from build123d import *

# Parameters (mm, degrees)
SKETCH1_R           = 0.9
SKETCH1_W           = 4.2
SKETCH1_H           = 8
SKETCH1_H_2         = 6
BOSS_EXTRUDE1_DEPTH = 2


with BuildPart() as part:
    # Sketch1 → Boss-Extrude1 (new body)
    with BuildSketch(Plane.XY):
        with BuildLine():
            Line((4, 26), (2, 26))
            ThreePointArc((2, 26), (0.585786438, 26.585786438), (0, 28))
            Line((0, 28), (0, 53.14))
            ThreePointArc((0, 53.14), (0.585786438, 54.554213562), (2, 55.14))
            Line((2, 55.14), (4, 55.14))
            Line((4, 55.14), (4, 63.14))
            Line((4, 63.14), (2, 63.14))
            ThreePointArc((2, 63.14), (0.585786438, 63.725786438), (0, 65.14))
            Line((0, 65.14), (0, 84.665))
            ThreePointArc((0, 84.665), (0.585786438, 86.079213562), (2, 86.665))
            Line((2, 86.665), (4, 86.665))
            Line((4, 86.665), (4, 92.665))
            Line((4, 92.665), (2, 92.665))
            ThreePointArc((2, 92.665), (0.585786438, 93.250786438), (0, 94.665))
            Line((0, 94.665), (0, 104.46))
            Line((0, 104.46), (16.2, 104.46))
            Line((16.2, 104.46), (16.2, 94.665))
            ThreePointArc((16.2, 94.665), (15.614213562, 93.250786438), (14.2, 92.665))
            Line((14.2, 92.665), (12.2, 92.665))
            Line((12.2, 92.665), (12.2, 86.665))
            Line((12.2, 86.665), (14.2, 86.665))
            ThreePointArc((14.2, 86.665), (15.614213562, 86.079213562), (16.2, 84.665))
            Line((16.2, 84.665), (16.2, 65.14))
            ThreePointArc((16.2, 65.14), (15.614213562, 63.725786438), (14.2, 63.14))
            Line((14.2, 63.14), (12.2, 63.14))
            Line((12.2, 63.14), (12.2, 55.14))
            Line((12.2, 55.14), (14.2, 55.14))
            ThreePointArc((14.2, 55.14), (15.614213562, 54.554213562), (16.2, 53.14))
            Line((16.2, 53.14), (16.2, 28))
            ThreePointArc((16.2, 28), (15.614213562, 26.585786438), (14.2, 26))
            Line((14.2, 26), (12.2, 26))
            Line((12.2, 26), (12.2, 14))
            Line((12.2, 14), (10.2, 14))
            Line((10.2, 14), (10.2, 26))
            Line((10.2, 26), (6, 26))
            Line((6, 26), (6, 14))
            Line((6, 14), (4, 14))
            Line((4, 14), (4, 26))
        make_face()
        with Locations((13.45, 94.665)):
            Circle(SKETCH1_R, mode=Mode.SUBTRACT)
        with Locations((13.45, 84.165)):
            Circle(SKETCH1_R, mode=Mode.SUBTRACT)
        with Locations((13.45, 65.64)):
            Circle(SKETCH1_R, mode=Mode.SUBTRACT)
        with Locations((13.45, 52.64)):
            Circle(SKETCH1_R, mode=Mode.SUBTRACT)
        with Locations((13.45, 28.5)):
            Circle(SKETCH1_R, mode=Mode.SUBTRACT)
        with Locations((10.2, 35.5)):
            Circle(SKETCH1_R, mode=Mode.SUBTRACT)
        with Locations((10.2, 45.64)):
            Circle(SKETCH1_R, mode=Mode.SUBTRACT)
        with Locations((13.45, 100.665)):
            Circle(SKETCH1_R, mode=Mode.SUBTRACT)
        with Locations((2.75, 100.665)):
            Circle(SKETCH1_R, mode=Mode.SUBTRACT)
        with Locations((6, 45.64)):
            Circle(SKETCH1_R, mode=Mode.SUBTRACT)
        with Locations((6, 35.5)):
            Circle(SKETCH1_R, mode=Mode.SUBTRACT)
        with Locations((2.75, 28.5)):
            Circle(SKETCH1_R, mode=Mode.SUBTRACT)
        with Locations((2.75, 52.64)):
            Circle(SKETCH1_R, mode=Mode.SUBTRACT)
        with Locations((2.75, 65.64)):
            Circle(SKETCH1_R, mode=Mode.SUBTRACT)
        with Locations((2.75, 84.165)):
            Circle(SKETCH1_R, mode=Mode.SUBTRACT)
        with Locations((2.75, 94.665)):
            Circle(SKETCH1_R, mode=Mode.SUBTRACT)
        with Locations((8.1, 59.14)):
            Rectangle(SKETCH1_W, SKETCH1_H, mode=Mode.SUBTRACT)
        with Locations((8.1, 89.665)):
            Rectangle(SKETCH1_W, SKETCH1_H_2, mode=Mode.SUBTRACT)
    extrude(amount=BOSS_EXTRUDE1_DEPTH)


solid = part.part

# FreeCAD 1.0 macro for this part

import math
import FreeCAD as App
import Part
import Sketcher
from FreeCAD import Vector
Q = App.Units.Quantity


def add_polygon(sketch, points):
    """Adds a closed chain of lines whose ends are joined by coincident constraints."""
    first, n = sketch.GeometryCount, len(points)
    for a, b in zip(points, points[1:] + points[:1]):
        sketch.addGeometry(Part.LineSegment(App.Vector(*a, 0), App.Vector(*b, 0)), False)
    for i in range(n):
        sketch.addConstraint(Sketcher.Constraint("Coincident", first + i, 2, first + (i + 1) % n, 1))

doc = App.newDocument("Part")
body = doc.addObject("PartDesign::Body", "Body")

sketch1 = doc.addObject("Sketcher::SketchObject", "Sketch")
body.addObject(sketch1)
sketch1.AttachmentSupport = (doc.XY_Plane, [""])
sketch1.MapMode = "FlatFace"
sketch1.addGeometry(Part.LineSegment(Vector(2, 26, 0), Vector(4, 26, 0)), False)
sketch1.addGeometry(Part.LineSegment(Vector(4, 26, 0), Vector(4, 14, 0)), False)
sketch1.addGeometry(Part.LineSegment(Vector(4, 14, 0), Vector(6, 14, 0)), False)
sketch1.addGeometry(Part.LineSegment(Vector(6, 14, 0), Vector(6, 26, 0)), False)
sketch1.addGeometry(Part.LineSegment(Vector(6, 26, 0), Vector(10.2, 26, 0)), False)
sketch1.addGeometry(Part.LineSegment(Vector(10.2, 26, 0), Vector(10.2, 14, 0)), False)
sketch1.addGeometry(Part.LineSegment(Vector(10.2, 14, 0), Vector(12.2, 14, 0)), False)
sketch1.addGeometry(Part.LineSegment(Vector(12.2, 14, 0), Vector(12.2, 26, 0)), False)
sketch1.addGeometry(Part.LineSegment(Vector(12.2, 26, 0), Vector(14.2, 26, 0)), False)
sketch1.addGeometry(Part.ArcOfCircle(Part.Circle(Vector(14.2, 28, 0), Vector(0, 0, 1), 2), math.radians(-90), math.radians(0)), False)
sketch1.addGeometry(Part.LineSegment(Vector(16.2, 28, 0), Vector(16.2, 53.14, 0)), False)
sketch1.addGeometry(Part.ArcOfCircle(Part.Circle(Vector(14.2, 53.14, 0), Vector(0, 0, 1), 2), math.radians(0), math.radians(90)), False)
sketch1.addGeometry(Part.LineSegment(Vector(14.2, 55.14, 0), Vector(12.2, 55.14, 0)), False)
sketch1.addGeometry(Part.LineSegment(Vector(12.2, 55.14, 0), Vector(12.2, 63.14, 0)), False)
sketch1.addGeometry(Part.LineSegment(Vector(12.2, 63.14, 0), Vector(14.2, 63.14, 0)), False)
sketch1.addGeometry(Part.ArcOfCircle(Part.Circle(Vector(14.2, 65.14, 0), Vector(0, 0, 1), 2), math.radians(-90), math.radians(0)), False)
sketch1.addGeometry(Part.LineSegment(Vector(16.2, 65.14, 0), Vector(16.2, 84.665, 0)), False)
sketch1.addGeometry(Part.ArcOfCircle(Part.Circle(Vector(14.2, 84.665, 0), Vector(0, 0, 1), 2), math.radians(0), math.radians(90)), False)
sketch1.addGeometry(Part.LineSegment(Vector(14.2, 86.665, 0), Vector(12.2, 86.665, 0)), False)
sketch1.addGeometry(Part.LineSegment(Vector(12.2, 86.665, 0), Vector(12.2, 92.665, 0)), False)
sketch1.addGeometry(Part.LineSegment(Vector(12.2, 92.665, 0), Vector(14.2, 92.665, 0)), False)
sketch1.addGeometry(Part.ArcOfCircle(Part.Circle(Vector(14.2, 94.665, 0), Vector(0, 0, 1), 2), math.radians(-90), math.radians(0)), False)
sketch1.addGeometry(Part.LineSegment(Vector(16.2, 94.665, 0), Vector(16.2, 104.46, 0)), False)
sketch1.addGeometry(Part.LineSegment(Vector(16.2, 104.46, 0), Vector(0, 104.46, 0)), False)
sketch1.addGeometry(Part.LineSegment(Vector(0, 104.46, 0), Vector(0, 94.665, 0)), False)
sketch1.addGeometry(Part.ArcOfCircle(Part.Circle(Vector(2, 94.665, 0), Vector(0, 0, 1), 2), math.radians(-180), math.radians(-90)), False)
sketch1.addGeometry(Part.LineSegment(Vector(2, 92.665, 0), Vector(4, 92.665, 0)), False)
sketch1.addGeometry(Part.LineSegment(Vector(4, 92.665, 0), Vector(4, 86.665, 0)), False)
sketch1.addGeometry(Part.LineSegment(Vector(4, 86.665, 0), Vector(2, 86.665, 0)), False)
sketch1.addGeometry(Part.ArcOfCircle(Part.Circle(Vector(2, 84.665, 0), Vector(0, 0, 1), 2), math.radians(90), math.radians(180)), False)
sketch1.addGeometry(Part.LineSegment(Vector(0, 84.665, 0), Vector(0, 65.14, 0)), False)
sketch1.addGeometry(Part.ArcOfCircle(Part.Circle(Vector(2, 65.14, 0), Vector(0, 0, 1), 2), math.radians(-180), math.radians(-90)), False)
sketch1.addGeometry(Part.LineSegment(Vector(2, 63.14, 0), Vector(4, 63.14, 0)), False)
sketch1.addGeometry(Part.LineSegment(Vector(4, 63.14, 0), Vector(4, 55.14, 0)), False)
sketch1.addGeometry(Part.LineSegment(Vector(4, 55.14, 0), Vector(2, 55.14, 0)), False)
sketch1.addGeometry(Part.ArcOfCircle(Part.Circle(Vector(2, 53.14, 0), Vector(0, 0, 1), 2), math.radians(90), math.radians(180)), False)
sketch1.addGeometry(Part.LineSegment(Vector(0, 53.14, 0), Vector(0, 28, 0)), False)
sketch1.addGeometry(Part.ArcOfCircle(Part.Circle(Vector(2, 28, 0), Vector(0, 0, 1), 2), math.radians(-180), math.radians(-90)), False)
sketch1.addGeometry(Part.Circle(Vector(13.45, 28.5, 0), Vector(0, 0, 1), 0.9), False)
sketch1.addGeometry(Part.Circle(Vector(10.2, 35.5, 0), Vector(0, 0, 1), 0.9), False)
sketch1.addGeometry(Part.Circle(Vector(10.2, 45.64, 0), Vector(0, 0, 1), 0.9), False)
sketch1.addGeometry(Part.Circle(Vector(13.45, 52.64, 0), Vector(0, 0, 1), 0.9), False)
sketch1.addGeometry(Part.Circle(Vector(6, 35.5, 0), Vector(0, 0, 1), 0.9), False)
sketch1.addGeometry(Part.Circle(Vector(6, 45.64, 0), Vector(0, 0, 1), 0.9), False)
sketch1.addGeometry(Part.Circle(Vector(2.75, 28.5, 0), Vector(0, 0, 1), 0.9), False)
add_polygon(sketch1, [(6, 55.14), (6, 63.14), (10.2, 63.14), (10.2, 55.14)])
sketch1.addGeometry(Part.Circle(Vector(2.75, 52.64, 0), Vector(0, 0, 1), 0.9), False)
sketch1.addGeometry(Part.Circle(Vector(13.45, 65.64, 0), Vector(0, 0, 1), 0.9), False)
sketch1.addGeometry(Part.Circle(Vector(13.45, 84.165, 0), Vector(0, 0, 1), 0.9), False)
sketch1.addGeometry(Part.Circle(Vector(13.45, 94.665, 0), Vector(0, 0, 1), 0.9), False)
sketch1.addGeometry(Part.Circle(Vector(13.45, 100.665, 0), Vector(0, 0, 1), 0.9), False)
sketch1.addGeometry(Part.Circle(Vector(2.75, 65.64, 0), Vector(0, 0, 1), 0.9), False)
add_polygon(sketch1, [(6, 86.665), (6, 92.665), (10.2, 92.665), (10.2, 86.665)])
sketch1.addGeometry(Part.Circle(Vector(2.75, 84.165, 0), Vector(0, 0, 1), 0.9), False)
sketch1.addGeometry(Part.Circle(Vector(2.75, 94.665, 0), Vector(0, 0, 1), 0.9), False)
sketch1.addGeometry(Part.Circle(Vector(2.75, 100.665, 0), Vector(0, 0, 1), 0.9), False)
sketch1.addConstraint(Sketcher.Constraint("Coincident", 0, 2, 1, 1))
sketch1.addConstraint(Sketcher.Constraint("Coincident", 1, 2, 2, 1))
sketch1.addConstraint(Sketcher.Constraint("Coincident", 2, 2, 3, 1))
sketch1.addConstraint(Sketcher.Constraint("Coincident", 3, 2, 4, 1))
sketch1.addConstraint(Sketcher.Constraint("Coincident", 4, 2, 5, 1))
sketch1.addConstraint(Sketcher.Constraint("Coincident", 5, 2, 6, 1))
sketch1.addConstraint(Sketcher.Constraint("Coincident", 6, 2, 7, 1))
sketch1.addConstraint(Sketcher.Constraint("Coincident", 7, 2, 8, 1))
sketch1.addConstraint(Sketcher.Constraint("Tangent", 8, 2, 9, 1))
sketch1.addConstraint(Sketcher.Constraint("Tangent", 9, 2, 10, 1))
sketch1.addConstraint(Sketcher.Constraint("Tangent", 10, 2, 11, 1))
sketch1.addConstraint(Sketcher.Constraint("Tangent", 11, 2, 12, 1))
sketch1.addConstraint(Sketcher.Constraint("Coincident", 12, 2, 13, 1))
sketch1.addConstraint(Sketcher.Constraint("Coincident", 13, 2, 14, 1))
sketch1.addConstraint(Sketcher.Constraint("Tangent", 14, 2, 15, 1))
sketch1.addConstraint(Sketcher.Constraint("Tangent", 15, 2, 16, 1))
sketch1.addConstraint(Sketcher.Constraint("Tangent", 16, 2, 17, 1))
sketch1.addConstraint(Sketcher.Constraint("Tangent", 17, 2, 18, 1))
sketch1.addConstraint(Sketcher.Constraint("Coincident", 18, 2, 19, 1))
sketch1.addConstraint(Sketcher.Constraint("Coincident", 19, 2, 20, 1))
sketch1.addConstraint(Sketcher.Constraint("Tangent", 20, 2, 21, 1))
sketch1.addConstraint(Sketcher.Constraint("Tangent", 21, 2, 22, 1))
sketch1.addConstraint(Sketcher.Constraint("Coincident", 22, 2, 23, 1))
sketch1.addConstraint(Sketcher.Constraint("Coincident", 23, 2, 24, 1))
sketch1.addConstraint(Sketcher.Constraint("Tangent", 24, 2, 25, 1))
sketch1.addConstraint(Sketcher.Constraint("Tangent", 25, 2, 26, 1))
sketch1.addConstraint(Sketcher.Constraint("Coincident", 26, 2, 27, 1))
sketch1.addConstraint(Sketcher.Constraint("Coincident", 27, 2, 28, 1))
sketch1.addConstraint(Sketcher.Constraint("Tangent", 28, 2, 29, 1))
sketch1.addConstraint(Sketcher.Constraint("Tangent", 29, 2, 30, 1))
sketch1.addConstraint(Sketcher.Constraint("Tangent", 30, 2, 31, 1))
sketch1.addConstraint(Sketcher.Constraint("Tangent", 31, 2, 32, 1))
sketch1.addConstraint(Sketcher.Constraint("Coincident", 32, 2, 33, 1))
sketch1.addConstraint(Sketcher.Constraint("Coincident", 33, 2, 34, 1))
sketch1.addConstraint(Sketcher.Constraint("Tangent", 34, 2, 35, 1))
sketch1.addConstraint(Sketcher.Constraint("Tangent", 35, 2, 36, 1))
sketch1.addConstraint(Sketcher.Constraint("Tangent", 36, 2, 37, 1))
sketch1.addConstraint(Sketcher.Constraint("Tangent", 37, 2, 0, 1))
sketch1.addConstraint(Sketcher.Constraint("Horizontal", 0))
sketch1.addConstraint(Sketcher.Constraint("Vertical", 1))
sketch1.addConstraint(Sketcher.Constraint("Horizontal", 2))
sketch1.addConstraint(Sketcher.Constraint("Vertical", 3))
sketch1.addConstraint(Sketcher.Constraint("Horizontal", 4))
sketch1.addConstraint(Sketcher.Constraint("Vertical", 5))
sketch1.addConstraint(Sketcher.Constraint("Horizontal", 6))
sketch1.addConstraint(Sketcher.Constraint("Vertical", 7))
sketch1.addConstraint(Sketcher.Constraint("Horizontal", 8))
sketch1.addConstraint(Sketcher.Constraint("Vertical", 10))
sketch1.addConstraint(Sketcher.Constraint("Horizontal", 12))
sketch1.addConstraint(Sketcher.Constraint("Vertical", 13))
sketch1.addConstraint(Sketcher.Constraint("Horizontal", 14))
sketch1.addConstraint(Sketcher.Constraint("Vertical", 16))
sketch1.addConstraint(Sketcher.Constraint("Horizontal", 18))
sketch1.addConstraint(Sketcher.Constraint("Vertical", 19))
sketch1.addConstraint(Sketcher.Constraint("Horizontal", 20))
sketch1.addConstraint(Sketcher.Constraint("Vertical", 22))
sketch1.addConstraint(Sketcher.Constraint("Horizontal", 23))
sketch1.addConstraint(Sketcher.Constraint("Vertical", 24))
sketch1.addConstraint(Sketcher.Constraint("Horizontal", 26))
sketch1.addConstraint(Sketcher.Constraint("Vertical", 27))
sketch1.addConstraint(Sketcher.Constraint("Horizontal", 28))
sketch1.addConstraint(Sketcher.Constraint("Vertical", 30))
sketch1.addConstraint(Sketcher.Constraint("Horizontal", 32))
sketch1.addConstraint(Sketcher.Constraint("Vertical", 33))
sketch1.addConstraint(Sketcher.Constraint("Horizontal", 34))
sketch1.addConstraint(Sketcher.Constraint("Vertical", 36))
sketch1.addConstraint(Sketcher.Constraint("Vertical", 45))
sketch1.addConstraint(Sketcher.Constraint("Horizontal", 46))
sketch1.addConstraint(Sketcher.Constraint("Vertical", 47))
sketch1.addConstraint(Sketcher.Constraint("Horizontal", 48))
sketch1.addConstraint(Sketcher.Constraint("Vertical", 55))
sketch1.addConstraint(Sketcher.Constraint("Horizontal", 56))
sketch1.addConstraint(Sketcher.Constraint("Vertical", 57))
sketch1.addConstraint(Sketcher.Constraint("Horizontal", 58))
sketch1.addConstraint(Sketcher.Constraint("Equal", 9, 11))
sketch1.addConstraint(Sketcher.Constraint("Equal", 11, 15))
sketch1.addConstraint(Sketcher.Constraint("Equal", 15, 17))
sketch1.addConstraint(Sketcher.Constraint("Equal", 17, 21))
sketch1.addConstraint(Sketcher.Constraint("Equal", 21, 25))
sketch1.addConstraint(Sketcher.Constraint("Equal", 25, 29))
sketch1.addConstraint(Sketcher.Constraint("Equal", 29, 31))
sketch1.addConstraint(Sketcher.Constraint("Equal", 31, 35))
sketch1.addConstraint(Sketcher.Constraint("Equal", 35, 37))
sketch1.addConstraint(Sketcher.Constraint("Equal", 38, 39))
sketch1.addConstraint(Sketcher.Constraint("Equal", 39, 40))
sketch1.addConstraint(Sketcher.Constraint("Equal", 40, 41))
sketch1.addConstraint(Sketcher.Constraint("Equal", 41, 42))
sketch1.addConstraint(Sketcher.Constraint("Equal", 42, 43))
sketch1.addConstraint(Sketcher.Constraint("Equal", 43, 44))
sketch1.addConstraint(Sketcher.Constraint("Equal", 44, 49))
sketch1.addConstraint(Sketcher.Constraint("Equal", 49, 50))
sketch1.addConstraint(Sketcher.Constraint("Equal", 50, 51))
sketch1.addConstraint(Sketcher.Constraint("Equal", 51, 52))
sketch1.addConstraint(Sketcher.Constraint("Equal", 52, 53))
sketch1.addConstraint(Sketcher.Constraint("Equal", 53, 54))
sketch1.addConstraint(Sketcher.Constraint("Equal", 54, 59))
sketch1.addConstraint(Sketcher.Constraint("Equal", 59, 60))
sketch1.addConstraint(Sketcher.Constraint("Equal", 60, 61))
sketch1.addConstraint(Sketcher.Constraint("PointOnObject", 23, 2, -2))
sketch1.addConstraint(Sketcher.Constraint("PointOnObject", 29, 2, -2))
sketch1.addConstraint(Sketcher.Constraint("PointOnObject", 35, 2, -2))
sketch1.addConstraint(Sketcher.Constraint("Horizontal", 21, 3, 25, 3))
sketch1.addConstraint(Sketcher.Constraint("Horizontal", 17, 3, 29, 3))
sketch1.addConstraint(Sketcher.Constraint("Horizontal", 15, 3, 31, 3))
sketch1.addConstraint(Sketcher.Constraint("Horizontal", 11, 3, 35, 3))
sketch1.addConstraint(Sketcher.Constraint("Horizontal", 9, 3, 37, 3))
sketch1.addConstraint(Sketcher.Constraint("Horizontal", 39, 3, 42, 3))
sketch1.addConstraint(Sketcher.Constraint("Horizontal", 40, 3, 43, 3))
sketch1.addConstraint(Sketcher.Constraint("Horizontal", 38, 3, 44, 3))
sketch1.addConstraint(Sketcher.Constraint("Horizontal", 41, 3, 49, 3))
sketch1.addConstraint(Sketcher.Constraint("Horizontal", 25, 3, 52, 3))
sketch1.addConstraint(Sketcher.Constraint("Horizontal", 50, 3, 54, 3))
sketch1.addConstraint(Sketcher.Constraint("Horizontal", 51, 3, 59, 3))
sketch1.addConstraint(Sketcher.Constraint("Horizontal", 52, 3, 60, 3))
sketch1.addConstraint(Sketcher.Constraint("Horizontal", 53, 3, 61, 3))
sketch1.addConstraint(Sketcher.Constraint("Horizontal", 0, 2, 3, 2))
sketch1.addConstraint(Sketcher.Constraint("Horizontal", 2, 2, 5, 2))
sketch1.addConstraint(Sketcher.Constraint("Horizontal", 32, 2, 45, 2))
sketch1.addConstraint(Sketcher.Constraint("Horizontal", 34, 2, 47, 2))
sketch1.addConstraint(Sketcher.Constraint("Horizontal", 26, 2, 55, 2))
sketch1.addConstraint(Sketcher.Constraint("Horizontal", 28, 2, 57, 2))
sketch1.addConstraint(Sketcher.Constraint("Vertical", 11, 3, 15, 3))
sketch1.addConstraint(Sketcher.Constraint("Vertical", 17, 3, 21, 3))
sketch1.addConstraint(Sketcher.Constraint("Vertical", 39, 3, 40, 3))
sketch1.addConstraint(Sketcher.Constraint("Vertical", 38, 3, 41, 3))
sketch1.addConstraint(Sketcher.Constraint("Vertical", 42, 3, 43, 3))
sketch1.addConstraint(Sketcher.Constraint("Vertical", 44, 3, 49, 3))
sketch1.addConstraint(Sketcher.Constraint("Vertical", 41, 3, 50, 3))
sketch1.addConstraint(Sketcher.Constraint("Vertical", 50, 3, 51, 3))
sketch1.addConstraint(Sketcher.Constraint("Vertical", 51, 3, 52, 3))
sketch1.addConstraint(Sketcher.Constraint("Vertical", 52, 3, 53, 3))
sketch1.addConstraint(Sketcher.Constraint("Vertical", 49, 3, 54, 3))
sketch1.addConstraint(Sketcher.Constraint("Vertical", 54, 3, 59, 3))
sketch1.addConstraint(Sketcher.Constraint("Vertical", 59, 3, 60, 3))
sketch1.addConstraint(Sketcher.Constraint("Vertical", 60, 3, 61, 3))
sketch1.addConstraint(Sketcher.Constraint("Vertical", 43, 3, 2, 2))
sketch1.addConstraint(Sketcher.Constraint("Vertical", 40, 3, 4, 2))
sketch1.addConstraint(Sketcher.Constraint("Vertical", 7, 2, 12, 2))
sketch1.addConstraint(Sketcher.Constraint("Vertical", 13, 2, 18, 2))
sketch1.addConstraint(Sketcher.Constraint("Vertical", 1, 2, 26, 2))
sketch1.addConstraint(Sketcher.Constraint("Vertical", 27, 2, 32, 2))
sketch1.addConstraint(Sketcher.Constraint("Vertical", 3, 2, 45, 2))
sketch1.addConstraint(Sketcher.Constraint("Vertical", 5, 2, 46, 2))
sketch1.addConstraint(Sketcher.Constraint("Vertical", 48, 2, 55, 2))
sketch1.addConstraint(Sketcher.Constraint("Vertical", 47, 2, 56, 2))
sketch1.addConstraint(Sketcher.Constraint("Equal", 0, 2))
sketch1.addConstraint(Sketcher.Constraint("Equal", 2, 6))
sketch1.addConstraint(Sketcher.Constraint("Equal", 6, 8))
sketch1.addConstraint(Sketcher.Constraint("Radius", 9, Q("2 mm")))
sketch1.addConstraint(Sketcher.Constraint("Diameter", 38, Q("1.8 mm")))
sketch1.addConstraint(Sketcher.Constraint("DistanceX", 0, 1, 0, 2, Q("2 mm")))
sketch1.addConstraint(Sketcher.Constraint("DistanceY", 1, 2, 1, 1, Q("12 mm")))
sketch1.addConstraint(Sketcher.Constraint("DistanceY", 13, 1, 13, 2, Q("8 mm")))
sketch1.addConstraint(Sketcher.Constraint("DistanceY", 19, 1, 19, 2, Q("6 mm")))
sketch1.addConstraint(Sketcher.Constraint("DistanceX", 4, 1, 4, 2, Q("4.2 mm")))
sketch1.addConstraint(Sketcher.Constraint("DistanceY", -1, 1, 9, 3, Q("28 mm")))
sketch1.addConstraint(Sketcher.Constraint("DistanceY", 10, 1, 10, 2, Q("25.14 mm")))
sketch1.addConstraint(Sketcher.Constraint("DistanceY", -1, 1, 38, 3, Q("28.5 mm")))
sketch1.addConstraint(Sketcher.Constraint("DistanceY", -1, 1, 39, 3, Q("35.5 mm")))
sketch1.addConstraint(Sketcher.Constraint("DistanceY", 16, 1, 16, 2, Q("19.525 mm")))
sketch1.addConstraint(Sketcher.Constraint("DistanceY", 22, 1, 22, 2, Q("9.795 mm")))
sketch1.addConstraint(Sketcher.Constraint("DistanceX", -1, 1, 38, 3, Q("13.45 mm")))
sketch1.addConstraint(Sketcher.Constraint("DistanceY", -1, 1, 40, 3, Q("45.64 mm")))
sketch1.addConstraint(Sketcher.Constraint("DistanceY", -1, 1, 41, 3, Q("52.64 mm")))
sketch1.addConstraint(Sketcher.Constraint("DistanceX", -1, 1, 44, 3, Q("2.75 mm")))
sketch1.addConstraint(Sketcher.Constraint("DistanceY", -1, 1, 50, 3, Q("65.64 mm")))
sketch1.addConstraint(Sketcher.Constraint("DistanceY", -1, 1, 51, 3, Q("84.165 mm")))
sketch1.addConstraint(Sketcher.Constraint("DistanceY", -1, 1, 53, 3, Q("100.665 mm")))
pad1 = doc.addObject("PartDesign::Pad", "Pad")
body.addObject(pad1)
pad1.Profile = sketch1
pad1.Length = 2

doc.recompute()
